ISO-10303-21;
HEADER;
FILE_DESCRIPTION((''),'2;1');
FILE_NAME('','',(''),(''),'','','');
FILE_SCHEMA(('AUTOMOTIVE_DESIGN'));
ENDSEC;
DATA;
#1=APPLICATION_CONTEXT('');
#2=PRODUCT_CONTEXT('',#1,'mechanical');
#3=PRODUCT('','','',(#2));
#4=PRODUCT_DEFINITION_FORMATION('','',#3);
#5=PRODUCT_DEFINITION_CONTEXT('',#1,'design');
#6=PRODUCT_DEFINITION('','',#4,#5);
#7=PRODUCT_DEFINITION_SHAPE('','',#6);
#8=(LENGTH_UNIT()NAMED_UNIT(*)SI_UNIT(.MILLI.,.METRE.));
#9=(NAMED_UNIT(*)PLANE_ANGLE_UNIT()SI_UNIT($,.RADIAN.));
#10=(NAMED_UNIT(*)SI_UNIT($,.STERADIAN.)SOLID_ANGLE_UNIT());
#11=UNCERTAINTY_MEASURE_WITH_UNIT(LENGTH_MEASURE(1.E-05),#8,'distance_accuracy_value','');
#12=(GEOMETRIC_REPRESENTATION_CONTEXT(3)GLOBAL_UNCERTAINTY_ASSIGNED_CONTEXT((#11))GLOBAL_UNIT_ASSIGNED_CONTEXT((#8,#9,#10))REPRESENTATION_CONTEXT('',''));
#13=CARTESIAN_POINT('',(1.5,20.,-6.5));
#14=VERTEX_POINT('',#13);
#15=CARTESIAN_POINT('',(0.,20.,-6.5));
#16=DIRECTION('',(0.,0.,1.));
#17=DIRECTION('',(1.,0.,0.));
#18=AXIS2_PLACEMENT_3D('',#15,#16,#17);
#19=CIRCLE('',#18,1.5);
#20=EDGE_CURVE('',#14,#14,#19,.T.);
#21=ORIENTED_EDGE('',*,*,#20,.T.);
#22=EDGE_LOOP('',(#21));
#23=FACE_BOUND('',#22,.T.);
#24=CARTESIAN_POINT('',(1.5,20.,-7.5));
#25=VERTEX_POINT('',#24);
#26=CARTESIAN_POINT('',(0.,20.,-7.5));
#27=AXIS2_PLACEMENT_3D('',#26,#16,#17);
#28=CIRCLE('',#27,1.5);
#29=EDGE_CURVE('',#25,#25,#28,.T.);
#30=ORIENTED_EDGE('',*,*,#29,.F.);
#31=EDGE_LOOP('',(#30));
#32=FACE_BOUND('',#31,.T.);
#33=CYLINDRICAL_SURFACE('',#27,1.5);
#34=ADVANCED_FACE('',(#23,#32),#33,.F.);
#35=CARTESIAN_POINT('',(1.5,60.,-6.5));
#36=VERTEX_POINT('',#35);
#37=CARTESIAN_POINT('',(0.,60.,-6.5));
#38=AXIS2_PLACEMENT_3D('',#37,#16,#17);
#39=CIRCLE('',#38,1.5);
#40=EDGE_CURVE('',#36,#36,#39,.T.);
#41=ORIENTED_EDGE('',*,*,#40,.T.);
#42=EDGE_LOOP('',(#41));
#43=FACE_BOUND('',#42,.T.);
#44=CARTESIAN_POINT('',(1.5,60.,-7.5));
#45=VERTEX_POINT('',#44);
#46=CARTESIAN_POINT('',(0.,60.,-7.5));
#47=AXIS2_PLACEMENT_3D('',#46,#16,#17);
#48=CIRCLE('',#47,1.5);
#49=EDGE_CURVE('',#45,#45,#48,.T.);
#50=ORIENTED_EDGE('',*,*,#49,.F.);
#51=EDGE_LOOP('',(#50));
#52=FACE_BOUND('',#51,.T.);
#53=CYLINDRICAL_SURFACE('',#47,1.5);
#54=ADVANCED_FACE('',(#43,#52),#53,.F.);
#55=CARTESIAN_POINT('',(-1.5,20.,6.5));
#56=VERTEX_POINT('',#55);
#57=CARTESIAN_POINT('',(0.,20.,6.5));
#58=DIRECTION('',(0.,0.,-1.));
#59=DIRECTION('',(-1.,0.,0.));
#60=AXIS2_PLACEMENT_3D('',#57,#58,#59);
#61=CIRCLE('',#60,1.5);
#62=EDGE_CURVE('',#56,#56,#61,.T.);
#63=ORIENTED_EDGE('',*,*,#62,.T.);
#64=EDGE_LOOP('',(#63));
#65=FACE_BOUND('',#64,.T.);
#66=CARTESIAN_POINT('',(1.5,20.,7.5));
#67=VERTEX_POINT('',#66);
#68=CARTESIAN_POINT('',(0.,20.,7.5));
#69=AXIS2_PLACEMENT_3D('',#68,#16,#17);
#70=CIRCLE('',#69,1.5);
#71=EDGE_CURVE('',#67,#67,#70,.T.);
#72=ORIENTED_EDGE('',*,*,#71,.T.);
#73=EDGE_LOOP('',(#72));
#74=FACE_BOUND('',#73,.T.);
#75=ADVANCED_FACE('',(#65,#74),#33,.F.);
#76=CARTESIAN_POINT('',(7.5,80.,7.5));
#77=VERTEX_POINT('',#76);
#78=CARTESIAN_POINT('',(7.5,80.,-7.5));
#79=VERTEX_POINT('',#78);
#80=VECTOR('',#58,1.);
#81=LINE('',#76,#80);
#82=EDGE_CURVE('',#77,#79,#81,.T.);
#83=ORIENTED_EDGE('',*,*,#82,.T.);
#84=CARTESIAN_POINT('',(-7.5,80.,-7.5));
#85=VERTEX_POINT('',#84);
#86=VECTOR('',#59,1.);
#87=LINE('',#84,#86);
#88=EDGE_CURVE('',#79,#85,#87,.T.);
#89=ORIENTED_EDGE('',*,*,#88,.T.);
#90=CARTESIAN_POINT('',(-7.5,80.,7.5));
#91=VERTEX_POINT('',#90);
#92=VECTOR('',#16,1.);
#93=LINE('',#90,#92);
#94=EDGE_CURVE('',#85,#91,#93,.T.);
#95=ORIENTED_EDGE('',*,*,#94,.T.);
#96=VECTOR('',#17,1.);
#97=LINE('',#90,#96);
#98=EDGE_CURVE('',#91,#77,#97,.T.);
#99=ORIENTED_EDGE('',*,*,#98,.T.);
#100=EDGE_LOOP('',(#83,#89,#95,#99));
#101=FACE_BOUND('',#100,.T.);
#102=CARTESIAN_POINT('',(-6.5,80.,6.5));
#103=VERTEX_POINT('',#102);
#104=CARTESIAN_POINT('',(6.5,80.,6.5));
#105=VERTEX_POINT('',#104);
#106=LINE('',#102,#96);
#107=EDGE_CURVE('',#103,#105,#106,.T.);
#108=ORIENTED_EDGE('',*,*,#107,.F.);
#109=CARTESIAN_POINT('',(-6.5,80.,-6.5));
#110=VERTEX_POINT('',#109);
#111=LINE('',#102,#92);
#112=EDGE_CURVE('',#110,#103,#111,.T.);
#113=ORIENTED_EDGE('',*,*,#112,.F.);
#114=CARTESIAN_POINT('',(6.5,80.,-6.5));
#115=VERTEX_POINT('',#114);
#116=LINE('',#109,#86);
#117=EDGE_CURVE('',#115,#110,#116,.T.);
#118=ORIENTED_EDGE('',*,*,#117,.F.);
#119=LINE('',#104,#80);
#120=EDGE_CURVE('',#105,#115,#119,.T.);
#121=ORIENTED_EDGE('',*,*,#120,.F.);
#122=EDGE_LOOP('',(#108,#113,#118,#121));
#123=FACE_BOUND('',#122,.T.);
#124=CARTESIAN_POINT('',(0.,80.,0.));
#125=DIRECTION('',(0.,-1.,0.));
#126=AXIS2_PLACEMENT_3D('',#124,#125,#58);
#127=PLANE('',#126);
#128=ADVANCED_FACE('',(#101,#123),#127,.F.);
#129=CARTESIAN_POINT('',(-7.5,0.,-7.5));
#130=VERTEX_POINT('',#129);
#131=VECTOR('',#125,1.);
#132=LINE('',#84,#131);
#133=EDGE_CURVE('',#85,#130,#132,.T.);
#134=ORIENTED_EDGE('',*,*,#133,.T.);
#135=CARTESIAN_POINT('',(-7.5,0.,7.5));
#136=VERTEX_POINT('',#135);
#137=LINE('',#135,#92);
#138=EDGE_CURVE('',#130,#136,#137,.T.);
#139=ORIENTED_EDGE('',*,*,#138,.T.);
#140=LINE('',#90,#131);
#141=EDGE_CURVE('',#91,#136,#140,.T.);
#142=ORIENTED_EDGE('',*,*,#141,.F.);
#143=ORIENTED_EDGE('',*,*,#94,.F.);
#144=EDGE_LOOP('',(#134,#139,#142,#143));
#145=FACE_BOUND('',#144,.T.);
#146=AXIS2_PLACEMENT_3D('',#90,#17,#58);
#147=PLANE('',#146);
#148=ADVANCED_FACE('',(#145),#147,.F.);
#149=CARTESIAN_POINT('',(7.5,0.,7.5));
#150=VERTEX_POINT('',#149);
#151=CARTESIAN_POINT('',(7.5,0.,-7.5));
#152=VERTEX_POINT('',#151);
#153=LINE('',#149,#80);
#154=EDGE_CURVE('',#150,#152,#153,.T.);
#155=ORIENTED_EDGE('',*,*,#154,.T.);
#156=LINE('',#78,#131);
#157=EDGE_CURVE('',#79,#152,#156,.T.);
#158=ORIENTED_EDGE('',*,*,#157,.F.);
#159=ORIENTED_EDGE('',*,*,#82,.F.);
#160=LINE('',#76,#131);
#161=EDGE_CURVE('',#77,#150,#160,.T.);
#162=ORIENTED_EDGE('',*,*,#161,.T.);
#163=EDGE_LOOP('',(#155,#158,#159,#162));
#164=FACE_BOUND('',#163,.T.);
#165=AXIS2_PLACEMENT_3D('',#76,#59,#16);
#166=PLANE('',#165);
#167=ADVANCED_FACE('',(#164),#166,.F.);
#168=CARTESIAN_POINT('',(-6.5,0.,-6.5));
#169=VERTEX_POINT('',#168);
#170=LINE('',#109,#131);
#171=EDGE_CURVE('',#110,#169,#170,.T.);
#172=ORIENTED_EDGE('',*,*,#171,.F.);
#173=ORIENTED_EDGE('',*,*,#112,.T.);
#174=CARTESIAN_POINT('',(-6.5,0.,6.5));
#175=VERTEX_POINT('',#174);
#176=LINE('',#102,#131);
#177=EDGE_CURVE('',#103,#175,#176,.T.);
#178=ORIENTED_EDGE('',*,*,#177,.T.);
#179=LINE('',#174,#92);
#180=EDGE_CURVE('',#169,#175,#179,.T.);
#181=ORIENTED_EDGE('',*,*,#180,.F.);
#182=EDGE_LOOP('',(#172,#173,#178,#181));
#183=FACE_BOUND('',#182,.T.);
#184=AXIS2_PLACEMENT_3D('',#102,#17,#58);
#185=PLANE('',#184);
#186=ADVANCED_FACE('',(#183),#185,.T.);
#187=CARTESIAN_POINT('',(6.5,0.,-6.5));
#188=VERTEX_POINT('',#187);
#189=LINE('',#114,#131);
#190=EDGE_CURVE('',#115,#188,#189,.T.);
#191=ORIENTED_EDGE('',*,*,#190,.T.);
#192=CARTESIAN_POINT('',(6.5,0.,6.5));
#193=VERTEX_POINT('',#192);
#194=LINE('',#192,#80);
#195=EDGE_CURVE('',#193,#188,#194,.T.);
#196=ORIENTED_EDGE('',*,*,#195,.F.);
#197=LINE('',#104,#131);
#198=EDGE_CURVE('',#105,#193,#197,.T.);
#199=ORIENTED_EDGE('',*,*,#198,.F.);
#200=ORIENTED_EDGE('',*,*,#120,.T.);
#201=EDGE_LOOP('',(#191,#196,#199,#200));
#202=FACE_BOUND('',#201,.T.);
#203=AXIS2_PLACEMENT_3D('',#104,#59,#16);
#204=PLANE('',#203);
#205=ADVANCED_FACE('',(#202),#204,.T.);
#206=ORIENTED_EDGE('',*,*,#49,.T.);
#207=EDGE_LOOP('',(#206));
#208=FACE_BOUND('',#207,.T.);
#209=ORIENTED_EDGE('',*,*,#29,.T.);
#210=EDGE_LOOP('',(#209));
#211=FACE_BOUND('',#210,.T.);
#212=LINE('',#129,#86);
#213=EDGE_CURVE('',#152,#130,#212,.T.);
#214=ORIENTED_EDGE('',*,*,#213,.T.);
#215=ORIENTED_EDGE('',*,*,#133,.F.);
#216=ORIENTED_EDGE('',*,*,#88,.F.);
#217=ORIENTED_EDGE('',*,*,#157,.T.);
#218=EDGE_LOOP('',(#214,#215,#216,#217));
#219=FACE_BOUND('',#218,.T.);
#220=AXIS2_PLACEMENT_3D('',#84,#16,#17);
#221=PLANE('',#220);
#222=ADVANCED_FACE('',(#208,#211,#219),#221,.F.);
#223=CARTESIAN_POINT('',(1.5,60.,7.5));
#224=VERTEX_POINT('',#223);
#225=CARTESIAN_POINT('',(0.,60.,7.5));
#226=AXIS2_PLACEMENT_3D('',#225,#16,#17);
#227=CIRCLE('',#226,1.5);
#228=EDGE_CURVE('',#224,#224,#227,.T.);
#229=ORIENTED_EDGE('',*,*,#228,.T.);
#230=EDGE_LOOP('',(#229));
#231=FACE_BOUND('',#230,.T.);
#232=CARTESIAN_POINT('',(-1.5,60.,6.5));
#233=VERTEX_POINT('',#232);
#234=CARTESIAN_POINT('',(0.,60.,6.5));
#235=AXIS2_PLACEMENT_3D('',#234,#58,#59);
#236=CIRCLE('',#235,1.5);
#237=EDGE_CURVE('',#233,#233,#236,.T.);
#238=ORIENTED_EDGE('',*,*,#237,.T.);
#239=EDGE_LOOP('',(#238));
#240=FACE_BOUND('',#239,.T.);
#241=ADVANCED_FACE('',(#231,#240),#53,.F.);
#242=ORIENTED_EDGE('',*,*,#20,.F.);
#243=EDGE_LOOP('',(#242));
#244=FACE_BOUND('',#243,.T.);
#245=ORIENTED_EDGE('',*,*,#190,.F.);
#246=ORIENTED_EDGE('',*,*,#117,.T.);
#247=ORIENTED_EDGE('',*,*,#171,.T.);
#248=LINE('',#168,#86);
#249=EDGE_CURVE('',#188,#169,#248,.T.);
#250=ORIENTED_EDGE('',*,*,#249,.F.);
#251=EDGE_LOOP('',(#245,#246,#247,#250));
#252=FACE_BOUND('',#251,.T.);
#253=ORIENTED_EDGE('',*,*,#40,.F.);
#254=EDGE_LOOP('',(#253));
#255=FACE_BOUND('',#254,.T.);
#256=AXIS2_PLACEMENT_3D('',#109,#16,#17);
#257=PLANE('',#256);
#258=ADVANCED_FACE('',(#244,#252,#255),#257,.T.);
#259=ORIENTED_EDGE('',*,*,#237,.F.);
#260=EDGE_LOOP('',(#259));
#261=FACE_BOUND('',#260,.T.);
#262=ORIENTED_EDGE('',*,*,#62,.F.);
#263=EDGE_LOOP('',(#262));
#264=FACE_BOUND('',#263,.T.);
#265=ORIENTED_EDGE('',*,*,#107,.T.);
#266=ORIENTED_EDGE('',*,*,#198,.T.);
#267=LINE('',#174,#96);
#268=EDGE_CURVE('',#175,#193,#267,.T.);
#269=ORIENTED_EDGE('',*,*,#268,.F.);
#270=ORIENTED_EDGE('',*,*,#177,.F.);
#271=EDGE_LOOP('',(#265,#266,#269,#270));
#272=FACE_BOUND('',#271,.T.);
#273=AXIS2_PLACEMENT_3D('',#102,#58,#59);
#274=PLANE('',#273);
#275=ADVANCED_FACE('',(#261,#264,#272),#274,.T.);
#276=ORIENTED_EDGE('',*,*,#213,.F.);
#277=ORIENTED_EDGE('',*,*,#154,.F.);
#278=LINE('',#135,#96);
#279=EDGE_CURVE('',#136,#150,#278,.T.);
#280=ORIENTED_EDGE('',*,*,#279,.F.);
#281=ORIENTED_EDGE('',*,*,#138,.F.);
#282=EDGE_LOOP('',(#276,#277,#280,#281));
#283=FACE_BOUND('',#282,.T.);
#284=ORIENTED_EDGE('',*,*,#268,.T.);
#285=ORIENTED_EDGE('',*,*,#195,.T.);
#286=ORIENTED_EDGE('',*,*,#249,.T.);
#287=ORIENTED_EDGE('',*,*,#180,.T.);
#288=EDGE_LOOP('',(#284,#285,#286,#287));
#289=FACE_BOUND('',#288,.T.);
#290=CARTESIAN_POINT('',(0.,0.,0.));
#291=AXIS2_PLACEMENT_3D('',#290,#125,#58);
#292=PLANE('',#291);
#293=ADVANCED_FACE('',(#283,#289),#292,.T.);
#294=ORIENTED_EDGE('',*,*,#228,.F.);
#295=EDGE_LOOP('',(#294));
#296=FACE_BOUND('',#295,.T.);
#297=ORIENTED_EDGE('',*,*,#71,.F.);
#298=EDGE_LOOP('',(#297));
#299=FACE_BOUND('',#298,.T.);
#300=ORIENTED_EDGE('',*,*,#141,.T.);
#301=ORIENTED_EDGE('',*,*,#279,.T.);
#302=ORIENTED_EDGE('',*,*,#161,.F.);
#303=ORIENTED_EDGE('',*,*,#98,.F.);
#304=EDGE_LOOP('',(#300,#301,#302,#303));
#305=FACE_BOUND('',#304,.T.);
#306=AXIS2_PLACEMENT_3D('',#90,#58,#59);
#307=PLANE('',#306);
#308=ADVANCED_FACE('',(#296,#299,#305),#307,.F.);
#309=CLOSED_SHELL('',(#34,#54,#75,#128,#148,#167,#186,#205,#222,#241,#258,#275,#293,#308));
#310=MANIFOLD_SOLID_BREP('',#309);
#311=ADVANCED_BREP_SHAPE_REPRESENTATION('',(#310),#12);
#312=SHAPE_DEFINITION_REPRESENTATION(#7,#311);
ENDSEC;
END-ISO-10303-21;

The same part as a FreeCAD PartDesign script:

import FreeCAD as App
import Part
import Sketcher
Q = App.Units.Quantity


def add_polygon(sketch, points):
    """Adds a closed chain of lines whose ends are joined by coincident constraints."""
    first, n = sketch.GeometryCount, len(points)
    for a, b in zip(points, points[1:] + points[:1]):
        sketch.addGeometry(Part.LineSegment(App.Vector(*a, 0), App.Vector(*b, 0)), False)
    for i in range(n):
        sketch.addConstraint(Sketcher.Constraint("Coincident", first + i, 2, first + (i + 1) % n, 1))

doc = App.newDocument("Part")
body = doc.addObject("PartDesign::Body", "Body")

# Sketch on XZ plane
sketch1 = doc.addObject("Sketcher::SketchObject", "Sketch")
body.addObject(sketch1)
sketch1.AttachmentSupport = (doc.XZ_Plane, [""])
sketch1.MapMode = "FlatFace"
add_polygon(sketch1, [(-8, -8), (-8, 8), (8, 8), (8, -8)])  # lines 0-3
add_polygon(sketch1, [(6, 6), (-6, 6), (-6, -6), (6, -6)])  # lines 4-7
sketch1.addConstraint([
    Sketcher.Constraint("Vertical", 0),
    Sketcher.Constraint("Horizontal", 1),
    Sketcher.Constraint("Vertical", 2),
    Sketcher.Constraint("Horizontal", 3),
    Sketcher.Constraint("Horizontal", 4),
    Sketcher.Constraint("Vertical", 5),
    Sketcher.Constraint("Horizontal", 6),
    Sketcher.Constraint("Vertical", 7),
    Sketcher.Constraint("Symmetric", 0, 2, 2, 2, -1, 1),
    Sketcher.Constraint("Symmetric", 4, 2, 6, 2, -1, 1),
    Sketcher.Constraint("Equal", 3, 0),
    Sketcher.Constraint("Equal", 6, 5),
    Sketcher.Constraint("DistanceX", 1, 1, 1, 2, Q("15 mm")),
    Sketcher.Constraint("DistanceX", 4, 2, 4, 1, Q("13 mm")),
])
pad1 = doc.addObject("PartDesign::Pad", "Pad")
body.addObject(pad1)
pad1.Profile = sketch1
pad1.Length = 80
pad1.Reversed = True

# Sketch on XY plane
sketch2 = doc.addObject("Sketcher::SketchObject", "Sketch001")
body.addObject(sketch2)
sketch2.AttachmentSupport = (doc.XY_Plane, [""])
sketch2.MapMode = "FlatFace"
sketch2.AttachmentOffset = App.Placement(App.Vector(0, 0, 7.5), App.Rotation())
sketch2.addGeometry([
    Part.Circle(App.Vector(0, 60, 0), App.Vector(0, 0, 1), 1.5),
    Part.Circle(App.Vector(0, 20, 0), App.Vector(0, 0, 1), 1.5),
], False)
sketch2.addConstraint([
    Sketcher.Constraint("Equal", 0, 1),
    Sketcher.Constraint("PointOnObject", 0, 3, -2),
    Sketcher.Constraint("PointOnObject", 1, 3, -2),
    Sketcher.Constraint("Diameter", 0, Q("3 mm")),
    Sketcher.Constraint("DistanceY", -1, 1, 0, 3, Q("60 mm")),
    Sketcher.Constraint("DistanceY", -1, 1, 1, 3, Q("20 mm")),
])
pocket1 = doc.addObject("PartDesign::Pocket", "Pocket")
body.addObject(pocket1)
pocket1.Profile = sketch2
pocket1.Type = "ThroughAll"

doc.recompute()
